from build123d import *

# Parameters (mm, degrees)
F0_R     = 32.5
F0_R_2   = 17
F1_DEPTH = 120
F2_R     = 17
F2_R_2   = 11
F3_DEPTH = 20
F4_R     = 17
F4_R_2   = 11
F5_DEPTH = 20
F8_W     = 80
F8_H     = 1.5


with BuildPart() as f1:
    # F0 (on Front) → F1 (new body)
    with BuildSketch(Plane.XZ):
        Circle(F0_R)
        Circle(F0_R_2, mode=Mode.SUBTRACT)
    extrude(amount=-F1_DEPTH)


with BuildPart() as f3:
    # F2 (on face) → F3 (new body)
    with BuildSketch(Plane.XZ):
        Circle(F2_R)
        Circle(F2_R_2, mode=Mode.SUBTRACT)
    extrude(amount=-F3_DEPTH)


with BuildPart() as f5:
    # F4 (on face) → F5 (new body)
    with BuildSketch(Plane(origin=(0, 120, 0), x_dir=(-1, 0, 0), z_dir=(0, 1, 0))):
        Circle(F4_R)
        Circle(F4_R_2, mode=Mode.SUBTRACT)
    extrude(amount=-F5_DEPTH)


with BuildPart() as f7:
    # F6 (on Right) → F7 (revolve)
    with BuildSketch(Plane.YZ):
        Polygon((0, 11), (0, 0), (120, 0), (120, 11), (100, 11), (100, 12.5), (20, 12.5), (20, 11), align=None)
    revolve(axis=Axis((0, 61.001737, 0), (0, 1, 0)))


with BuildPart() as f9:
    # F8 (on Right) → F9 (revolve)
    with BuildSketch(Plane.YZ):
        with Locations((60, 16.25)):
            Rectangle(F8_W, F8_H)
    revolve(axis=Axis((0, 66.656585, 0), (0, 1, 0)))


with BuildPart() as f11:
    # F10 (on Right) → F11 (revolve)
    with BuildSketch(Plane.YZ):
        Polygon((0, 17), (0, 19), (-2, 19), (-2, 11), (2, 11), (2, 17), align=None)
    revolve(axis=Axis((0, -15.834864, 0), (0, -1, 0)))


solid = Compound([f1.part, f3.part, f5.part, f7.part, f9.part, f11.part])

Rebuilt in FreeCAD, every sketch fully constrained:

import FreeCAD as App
import Part
import Sketcher
from FreeCAD import Vector


def add_polygon(sketch, points):
    """Adds a closed chain of lines whose ends are joined by coincident constraints."""
    first, n = sketch.GeometryCount, len(points)
    for a, b in zip(points, points[1:] + points[:1]):
        sketch.addGeometry(Part.LineSegment(App.Vector(*a, 0), App.Vector(*b, 0)), False)
    for i in range(n):
        sketch.addConstraint(Sketcher.Constraint("Coincident", first + i, 2, first + (i + 1) % n, 1))

doc = App.newDocument("Part")
body = doc.addObject("PartDesign::Body", "Body")

sketch1 = body.newObject("Sketcher::SketchObject", "Sketch")
sketch1.AttachmentSupport = (doc.getObject("XZ_Plane"), [""])
sketch1.MapMode = "FlatFace"
sketch1.addGeometry([
    Part.Circle(Vector(0, 0, 0), Vector(0, 0, 1), 32),
    Part.Circle(Vector(0, 0, 0), Vector(0, 0, 1), 17),
], False)
sketch1.addConstraint([
    Sketcher.Constraint("Coincident", 0, 3, -1, 1),
    Sketcher.Constraint("Coincident", 1, 3, -1, 1),
    Sketcher.Constraint("Diameter", 0, 65.0),
    Sketcher.Constraint("Diameter", 1, 34.0),
])
pad1 = body.newObject("PartDesign::Pad", "Pad")
pad1.Profile = sketch1
pad1.Length = 120
pad1.Reversed = True
body2 = doc.addObject("PartDesign::Body", "Body001")

sketch2 = body2.newObject("Sketcher::SketchObject", "Sketch001")
sketch2.AttachmentSupport = (doc.getObject("XZ_Plane001"), [""])
sketch2.MapMode = "FlatFace"
sketch2.addGeometry([
    Part.Circle(Vector(0, 0, 0), Vector(0, 0, 1), 17),
    Part.Circle(Vector(0, 0, 0), Vector(0, 0, 1), 11),
], False)
sketch2.addConstraint([
    Sketcher.Constraint("Coincident", 0, 3, -1, 1),
    Sketcher.Constraint("Coincident", 1, 3, -1, 1),
    Sketcher.Constraint("Diameter", 0, 34.0),
    Sketcher.Constraint("Diameter", 1, 22.0),
])
pad2 = body2.newObject("PartDesign::Pad", "Pad001")
pad2.Profile = sketch2
pad2.Length = 20
pad2.Reversed = True
body3 = doc.addObject("PartDesign::Body", "Body002")

sketch3 = body3.newObject("Sketcher::SketchObject", "Sketch002")
sketch3.AttachmentSupport = (doc.getObject("XZ_Plane002"), [""])
sketch3.MapMode = "FlatFace"
sketch3.AttachmentOffset = App.Placement(Vector(0, 0, -120), App.Rotation())
sketch3.addGeometry([
    Part.Circle(Vector(0, 0, 0), Vector(0, 0, 1), 17),
    Part.Circle(Vector(0, 0, 0), Vector(0, 0, 1), 11),
], False)
sketch3.addConstraint([
    Sketcher.Constraint("Coincident", 0, 3, -1, 1),
    Sketcher.Constraint("Coincident", 1, 3, -1, 1),
    Sketcher.Constraint("Diameter", 0, 34.0),
    Sketcher.Constraint("Diameter", 1, 22.0),
])
pad3 = body3.newObject("PartDesign::Pad", "Pad002")
pad3.Profile = sketch3
pad3.Length = 20
body4 = doc.addObject("PartDesign::Body", "Body003")

sketch4 = body4.newObject("Sketcher::SketchObject", "Sketch003")
sketch4.AttachmentSupport = (doc.getObject("YZ_Plane003"), [""])
sketch4.MapMode = "FlatFace"
add_polygon(sketch4, [(0, 11), (0, 0), (120, 0), (120, 11), (100, 11), (100, 12.5), (20, 12.5), (20, 11)])
sketch4.addConstraint([
    Sketcher.Constraint("Vertical", 0),
    Sketcher.Constraint("Horizontal", 1),
    Sketcher.Constraint("Vertical", 2),
    Sketcher.Constraint("Horizontal", 3),
    Sketcher.Constraint("Vertical", 4),
    Sketcher.Constraint("Horizontal", 5),
    Sketcher.Constraint("Vertical", 6),
    Sketcher.Constraint("Horizontal", 7),
    Sketcher.Constraint("Coincident", 0, 2, -1, 1),
    Sketcher.Constraint("Horizontal", 3, 2, 6, 2),
    Sketcher.Constraint("Equal", 3, 7),
    Sketcher.Constraint("DistanceX", 1, 1, 1, 2, 120.0),
    Sketcher.Constraint("DistanceX", 3, 2, 3, 1, 20.0),
    Sketcher.Constraint("DistanceY", 0, 2, 0, 1, 11.0),
    Sketcher.Constraint("DistanceY", 4, 1, 4, 2, 1.5),
])
revolution = body4.newObject("PartDesign::Revolution", "Revolution")
revolution.Profile = sketch4
revolution.ReferenceAxis = (sketch4, ["H_Axis"])
revolution.Angle = 360
body5 = doc.addObject("PartDesign::Body", "Body004")

sketch5 = body5.newObject("Sketcher::SketchObject", "Sketch004")
sketch5.AttachmentSupport = (doc.getObject("YZ_Plane004"), [""])
sketch5.MapMode = "FlatFace"
add_polygon(sketch5, [(20, 17), (20, 15.5), (100, 15.5), (100, 17)])
sketch5.addConstraint([
    Sketcher.Constraint("Vertical", 0),
    Sketcher.Constraint("Horizontal", 1),
    Sketcher.Constraint("Vertical", 2),
    Sketcher.Constraint("Horizontal", 3),
    Sketcher.Constraint("DistanceX", 1, 1, 1, 2, 80.0),
    Sketcher.Constraint("DistanceY", 0, 2, 0, 1, 1.5),
    Sketcher.Constraint("DistanceX", -1, 1, 0, 2, 20.0),
    Sketcher.Constraint("DistanceY", -1, 1, 2, 2, 17.0),
])
revolution2 = body5.newObject("PartDesign::Revolution", "Revolution001")
revolution2.Profile = sketch5
revolution2.ReferenceAxis = (sketch5, ["H_Axis"])
revolution2.Angle = 360
body6 = doc.addObject("PartDesign::Body", "Body005")

sketch6 = body6.newObject("Sketcher::SketchObject", "Sketch005")
sketch6.AttachmentSupport = (doc.getObject("YZ_Plane005"), [""])
sketch6.MapMode = "FlatFace"
add_polygon(sketch6, [(0, 17), (0, 19), (-2, 19), (-2, 11), (2, 11), (2, 17)])
sketch6.addConstraint([
    Sketcher.Constraint("Vertical", 0),
    Sketcher.Constraint("Horizontal", 1),
    Sketcher.Constraint("Vertical", 2),
    Sketcher.Constraint("Horizontal", 3),
    Sketcher.Constraint("Vertical", 4),
    Sketcher.Constraint("Horizontal", 5),
    Sketcher.Constraint("PointOnObject", 0, 2, -2),
    Sketcher.Constraint("Equal", 1, 5),
    Sketcher.Constraint("Equal", 5, 0),
    Sketcher.Constraint("DistanceX", 1, 2, 1, 1, 2.0),
    Sketcher.Constraint("DistanceY", 2, 2, 2, 1, 8.0),
    Sketcher.Constraint("DistanceY", -1, 1, 0, 2, 19.0),
])
revolution3 = body6.newObject("PartDesign::Revolution", "Revolution002")
revolution3.Profile = sketch6
revolution3.ReferenceAxis = (sketch6, ["H_Axis"])
revolution3.Angle = 360

doc.recompute()
